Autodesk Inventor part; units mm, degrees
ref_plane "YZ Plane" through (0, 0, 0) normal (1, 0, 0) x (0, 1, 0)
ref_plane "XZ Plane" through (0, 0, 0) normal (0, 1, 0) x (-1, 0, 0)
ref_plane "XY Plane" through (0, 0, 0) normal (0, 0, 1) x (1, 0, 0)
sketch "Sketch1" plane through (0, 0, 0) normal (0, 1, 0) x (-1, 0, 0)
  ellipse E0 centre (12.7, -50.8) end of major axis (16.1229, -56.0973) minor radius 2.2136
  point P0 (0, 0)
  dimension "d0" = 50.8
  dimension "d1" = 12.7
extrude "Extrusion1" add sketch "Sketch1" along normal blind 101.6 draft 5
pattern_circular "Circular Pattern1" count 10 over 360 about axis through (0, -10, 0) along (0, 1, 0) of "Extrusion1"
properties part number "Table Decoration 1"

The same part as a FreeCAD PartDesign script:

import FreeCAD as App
import Part
import Sketcher
Q = App.Units.Quantity

doc = App.newDocument("Part")
body = doc.addObject("PartDesign::Body", "Body")
body.AllowCompound = True

# Sketch on XZ plane
sketch1 = body.newObject("Sketcher::SketchObject", "Sketch")
sketch1.AttachmentSupport = (doc.getObject("XZ_Plane"), [""])
sketch1.MapMode = "FlatFace"
sketch1.addGeometry(Part.Ellipse(App.Vector(-16.1229, -56.0973, 0), App.Vector(-10.840765, -52.001362, 0), App.Vector(-12.7, -50.8, 0)), False)
sketch1.addConstraint(Sketcher.Constraint("Block", 0))
pad1 = body.newObject("PartDesign::Pad", "Pad")
pad1.Profile = sketch1
pad1.Length = Q("4 in")
pad1.Reversed = True
pad1.TaperAngle = 5
doc.recompute()

polarpattern = body.newObject("PartDesign::PolarPattern", "PolarPattern")
polarpattern.Originals = [pad1]
polarpattern.Axis = (doc.getObject("Y_Axis"), [""])
polarpattern.Angle = 360
polarpattern.Occurrences = 10
body.Tip = polarpattern

doc.recompute()
